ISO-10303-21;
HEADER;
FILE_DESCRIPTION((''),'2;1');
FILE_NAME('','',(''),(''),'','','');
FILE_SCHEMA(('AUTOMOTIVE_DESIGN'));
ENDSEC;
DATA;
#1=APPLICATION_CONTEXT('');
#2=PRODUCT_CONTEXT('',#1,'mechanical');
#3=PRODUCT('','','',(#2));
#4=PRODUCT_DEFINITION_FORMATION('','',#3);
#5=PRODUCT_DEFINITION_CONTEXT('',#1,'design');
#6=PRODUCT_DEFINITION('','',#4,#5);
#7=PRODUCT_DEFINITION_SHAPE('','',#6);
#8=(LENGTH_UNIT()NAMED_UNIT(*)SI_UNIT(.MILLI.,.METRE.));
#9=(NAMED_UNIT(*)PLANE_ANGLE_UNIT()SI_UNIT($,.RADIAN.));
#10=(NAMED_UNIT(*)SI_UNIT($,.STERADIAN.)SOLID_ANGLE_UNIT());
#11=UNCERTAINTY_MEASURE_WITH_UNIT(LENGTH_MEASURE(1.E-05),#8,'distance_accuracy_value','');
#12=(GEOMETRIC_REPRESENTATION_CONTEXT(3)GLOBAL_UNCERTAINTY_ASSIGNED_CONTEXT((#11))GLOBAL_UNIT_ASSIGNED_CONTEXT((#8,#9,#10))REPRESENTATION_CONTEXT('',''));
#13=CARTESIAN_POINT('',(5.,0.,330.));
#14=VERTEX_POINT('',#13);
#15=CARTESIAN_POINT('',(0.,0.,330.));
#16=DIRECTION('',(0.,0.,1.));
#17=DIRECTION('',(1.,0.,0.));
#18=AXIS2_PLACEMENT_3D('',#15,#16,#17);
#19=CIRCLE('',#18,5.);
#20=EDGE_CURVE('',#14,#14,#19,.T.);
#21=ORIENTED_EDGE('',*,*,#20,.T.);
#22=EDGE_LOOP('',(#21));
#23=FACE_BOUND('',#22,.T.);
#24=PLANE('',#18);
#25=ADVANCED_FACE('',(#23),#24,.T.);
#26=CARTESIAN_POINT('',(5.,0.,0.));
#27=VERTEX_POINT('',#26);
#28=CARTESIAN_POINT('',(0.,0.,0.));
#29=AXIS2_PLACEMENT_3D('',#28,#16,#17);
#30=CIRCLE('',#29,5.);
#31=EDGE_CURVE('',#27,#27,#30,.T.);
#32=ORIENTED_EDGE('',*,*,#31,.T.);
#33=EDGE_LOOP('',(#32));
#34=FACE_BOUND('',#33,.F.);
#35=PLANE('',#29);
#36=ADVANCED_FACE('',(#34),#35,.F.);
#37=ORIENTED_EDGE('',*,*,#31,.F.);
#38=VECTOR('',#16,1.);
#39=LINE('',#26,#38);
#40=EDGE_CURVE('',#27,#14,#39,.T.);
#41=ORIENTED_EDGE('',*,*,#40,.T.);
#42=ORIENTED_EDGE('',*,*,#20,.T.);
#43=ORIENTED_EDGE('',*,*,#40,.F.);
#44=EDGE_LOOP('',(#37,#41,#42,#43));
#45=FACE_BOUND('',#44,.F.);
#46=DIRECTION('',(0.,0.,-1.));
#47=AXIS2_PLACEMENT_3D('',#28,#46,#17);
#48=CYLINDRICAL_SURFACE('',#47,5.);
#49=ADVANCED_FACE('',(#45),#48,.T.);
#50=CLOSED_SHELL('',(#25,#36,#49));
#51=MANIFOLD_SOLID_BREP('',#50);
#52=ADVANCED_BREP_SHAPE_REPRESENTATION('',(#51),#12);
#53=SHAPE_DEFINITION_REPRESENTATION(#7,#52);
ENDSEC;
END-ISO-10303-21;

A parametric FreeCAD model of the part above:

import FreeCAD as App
import Part
import Sketcher
from FreeCAD import Vector

doc = App.newDocument("Part")
body = doc.addObject("PartDesign::Body", "Body")

sketch1 = body.newObject("Sketcher::SketchObject", "Sketch")
sketch1.AttachmentSupport = (doc.getObject("XY_Plane"), [""])
sketch1.MapMode = "FlatFace"
sketch1.addGeometry(Part.Circle(Vector(0, 0, 0), Vector(0, 0, 1), 5), False)
sketch1.addConstraint([
    Sketcher.Constraint("Coincident", 0, 3, -1, 1),
    Sketcher.Constraint("Diameter", 0, 10.0),
])
pad1 = body.newObject("PartDesign::Pad", "Pad")
pad1.Profile = sketch1
pad1.Length = 330

doc.recompute()
